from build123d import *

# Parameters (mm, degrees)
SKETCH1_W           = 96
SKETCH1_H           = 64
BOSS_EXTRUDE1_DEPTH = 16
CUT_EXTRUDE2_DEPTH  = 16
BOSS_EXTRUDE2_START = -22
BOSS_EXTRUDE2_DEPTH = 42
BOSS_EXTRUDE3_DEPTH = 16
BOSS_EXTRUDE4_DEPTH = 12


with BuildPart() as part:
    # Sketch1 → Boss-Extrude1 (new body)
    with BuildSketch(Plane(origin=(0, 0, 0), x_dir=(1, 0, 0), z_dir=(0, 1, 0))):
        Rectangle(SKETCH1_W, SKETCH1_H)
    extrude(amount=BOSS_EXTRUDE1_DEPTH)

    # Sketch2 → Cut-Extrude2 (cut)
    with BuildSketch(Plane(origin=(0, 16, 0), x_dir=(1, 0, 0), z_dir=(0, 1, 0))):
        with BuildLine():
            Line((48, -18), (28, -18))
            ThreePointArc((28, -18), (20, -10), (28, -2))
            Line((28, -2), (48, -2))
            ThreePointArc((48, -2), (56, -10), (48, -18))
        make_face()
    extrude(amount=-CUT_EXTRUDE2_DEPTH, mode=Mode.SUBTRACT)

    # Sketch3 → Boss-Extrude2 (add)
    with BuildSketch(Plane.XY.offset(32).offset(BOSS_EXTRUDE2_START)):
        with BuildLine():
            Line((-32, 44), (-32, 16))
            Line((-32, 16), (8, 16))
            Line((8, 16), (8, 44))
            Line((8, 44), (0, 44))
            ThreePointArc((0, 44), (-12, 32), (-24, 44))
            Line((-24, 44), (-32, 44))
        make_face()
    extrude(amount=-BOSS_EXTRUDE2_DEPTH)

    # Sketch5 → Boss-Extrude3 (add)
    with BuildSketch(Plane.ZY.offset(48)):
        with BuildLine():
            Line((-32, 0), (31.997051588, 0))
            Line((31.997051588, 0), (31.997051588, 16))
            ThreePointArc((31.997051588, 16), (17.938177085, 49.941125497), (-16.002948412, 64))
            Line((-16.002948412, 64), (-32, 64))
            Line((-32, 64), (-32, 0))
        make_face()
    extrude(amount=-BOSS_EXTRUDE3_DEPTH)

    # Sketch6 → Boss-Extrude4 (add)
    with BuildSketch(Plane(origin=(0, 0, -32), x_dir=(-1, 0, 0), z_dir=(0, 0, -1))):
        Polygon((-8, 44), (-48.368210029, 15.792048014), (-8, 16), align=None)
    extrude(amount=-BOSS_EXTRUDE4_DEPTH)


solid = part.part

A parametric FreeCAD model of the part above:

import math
import FreeCAD as App
import Part
import Sketcher

V = App.Vector


def add_polygon(sketch, points):
    """Adds a closed chain of lines whose ends are joined by coincident constraints."""
    first, n = sketch.GeometryCount, len(points)
    for a, b in zip(points, points[1:] + points[:1]):
        sketch.addGeometry(Part.LineSegment(App.Vector(*a, 0), App.Vector(*b, 0)), False)
    for i in range(n):
        sketch.addConstraint(Sketcher.Constraint("Coincident", first + i, 2, first + (i + 1) % n, 1))

doc = App.newDocument("Part")
body = doc.addObject("PartDesign::Body", "Body")

# Sketch on XZ plane
sketch1 = doc.addObject("Sketcher::SketchObject", "Sketch")
body.addObject(sketch1)
sketch1.AttachmentSupport = (doc.XZ_Plane, [""])
sketch1.MapMode = "FlatFace"
add_polygon(sketch1, [(-48, -32), (-48, 32), (48, 32), (48, -32)])  # lines 0-3
sketch1.addConstraint([
    Sketcher.Constraint("Vertical", 0),
    Sketcher.Constraint("Horizontal", 1),
    Sketcher.Constraint("Vertical", 2),
    Sketcher.Constraint("Horizontal", 3),
    Sketcher.Constraint("Symmetric", 0, 2, 2, 2, -1, 1),
    Sketcher.Constraint("DistanceX", 1, 1, 1, 2, 96.0),
    Sketcher.Constraint("DistanceY", 0, 1, 0, 2, 64.0),
])
pad1 = doc.addObject("PartDesign::Pad", "Pad")
body.addObject(pad1)
pad1.Profile = sketch1
pad1.Length = 16
pad1.Reversed = True

# Sketch on XZ plane
sketch2 = doc.addObject("Sketcher::SketchObject", "Sketch001")
body.addObject(sketch2)
sketch2.AttachmentSupport = (doc.XZ_Plane, [""])
sketch2.MapMode = "FlatFace"
sketch2.AttachmentOffset = App.Placement(V(0, 0, -16), App.Rotation())
sketch2.addGeometry([
    Part.LineSegment(V(28, 18, 0), V(48, 18, 0)),
    Part.ArcOfCircle(Part.Circle(V(48, 10, 0), V(0, 0, 1), 8), math.radians(-90), math.radians(90)),
    Part.LineSegment(V(48, 2, 0), V(28, 2, 0)),
    Part.ArcOfCircle(Part.Circle(V(28, 10, 0), V(0, 0, 1), 8), math.radians(90), math.radians(270)),
], False)
sketch2.addConstraint([
    Sketcher.Constraint("Tangent", 0, 2, 1, 2),
    Sketcher.Constraint("Tangent", 1, 1, 2, 1),
    Sketcher.Constraint("Tangent", 2, 2, 3, 2),
    Sketcher.Constraint("Tangent", 3, 1, 0, 1),
    Sketcher.Constraint("Horizontal", 0),
    Sketcher.Constraint("Horizontal", 2),
    Sketcher.Constraint("Radius", 1, 8.0),
    Sketcher.Constraint("DistanceX", 0, 1, 0, 2, 20.0),
    Sketcher.Constraint("DistanceX", -1, 1, 1, 3, 48.0),
    Sketcher.Constraint("DistanceY", -1, 1, 1, 3, 10.0),
])
pocket1 = doc.addObject("PartDesign::Pocket", "Pocket")
body.addObject(pocket1)
pocket1.Profile = sketch2
pocket1.Length = 16
pocket1.Reversed = True

# Sketch on XY plane
sketch3 = doc.addObject("Sketcher::SketchObject", "Sketch002")
body.addObject(sketch3)
sketch3.AttachmentSupport = (doc.XY_Plane, [""])
sketch3.MapMode = "FlatFace"
sketch3.AttachmentOffset = App.Placement(V(0, 0, 10), App.Rotation())
sketch3.addGeometry([
    Part.LineSegment(V(-32, 44, 0), V(-32, 16, 0)),  # 0
    Part.LineSegment(V(-32, 16, 0), V(8, 16, 0)),  # 1
    Part.LineSegment(V(8, 16, 0), V(8, 44, 0)),  # 2
    Part.LineSegment(V(8, 44, 0), V(0, 44, 0)),  # 3
    Part.ArcOfCircle(Part.Circle(V(-12, 44, 0), V(0, 0, 1), 12), math.radians(180), math.radians(360)),  # 4
    Part.LineSegment(V(-24, 44, 0), V(-32, 44, 0)),  # 5
], False)
sketch3.addConstraint([
    Sketcher.Constraint("Coincident", 0, 2, 1, 1),
    Sketcher.Constraint("Coincident", 1, 2, 2, 1),
    Sketcher.Constraint("Coincident", 2, 2, 3, 1),
    Sketcher.Constraint("Coincident", 3, 2, 4, 2),
    Sketcher.Constraint("Coincident", 4, 1, 5, 1),
    Sketcher.Constraint("Coincident", 5, 2, 0, 1),
    Sketcher.Constraint("Vertical", 0),
    Sketcher.Constraint("Horizontal", 1),
    Sketcher.Constraint("Vertical", 2),
    Sketcher.Constraint("Horizontal", 3),
    Sketcher.Constraint("Horizontal", 5),
    Sketcher.Constraint("PointOnObject", 3, 2, -2),
    Sketcher.Constraint("Horizontal", 4, 3, 2, 2),
    Sketcher.Constraint("Horizontal", 3, 2, 4, 1),
    Sketcher.Constraint("Equal", 3, 5),
    Sketcher.Constraint("Radius", 4, 12.0),
    Sketcher.Constraint("DistanceX", 1, 1, 1, 2, 40.0),
    Sketcher.Constraint("DistanceY", 0, 2, 0, 1, 28.0),
    Sketcher.Constraint("DistanceY", -1, 1, 4, 3, 44.0),
])
pad2 = doc.addObject("PartDesign::Pad", "Pad001")
body.addObject(pad2)
pad2.Profile = sketch3
pad2.Length = 42
pad2.Reversed = True

# Sketch on YZ plane
sketch4 = doc.addObject("Sketcher::SketchObject", "Sketch003")
body.addObject(sketch4)
sketch4.AttachmentSupport = (doc.YZ_Plane, [""])
sketch4.MapMode = "FlatFace"
sketch4.AttachmentOffset = App.Placement(V(0, 0, -48), App.Rotation())
sketch4.addGeometry([
    Part.LineSegment(V(0, -32, 0), V(0, 32, 0)),  # 0
    Part.LineSegment(V(0, 32, 0), V(16, 32, 0)),  # 1
    Part.ArcOfCircle(Part.Circle(V(16, -16, 0), V(0, 0, 1), 48), math.radians(0), math.radians(90)),  # 2
    Part.LineSegment(V(64, -16, 0), V(64, -32, 0)),  # 3
    Part.LineSegment(V(64, -32, 0), V(0, -32, 0)),  # 4
], False)
sketch4.addConstraint([
    Sketcher.Constraint("Coincident", 0, 2, 1, 1),
    Sketcher.Constraint("Tangent", 1, 2, 2, 2),
    Sketcher.Constraint("Tangent", 2, 1, 3, 1),
    Sketcher.Constraint("Coincident", 3, 2, 4, 1),
    Sketcher.Constraint("Coincident", 4, 2, 0, 1),
    Sketcher.Constraint("Vertical", 0),
    Sketcher.Constraint("Horizontal", 1),
    Sketcher.Constraint("Vertical", 3),
    Sketcher.Constraint("Horizontal", 4),
    Sketcher.Constraint("PointOnObject", 0, 2, -2),
    Sketcher.Constraint("Radius", 2, 48.0),
    Sketcher.Constraint("DistanceX", 1, 1, 1, 2, 16.0),
    Sketcher.Constraint("DistanceY", 3, 2, -1, 1, 32.0),
    Sketcher.Constraint("DistanceY", 0, 1, 0, 2, 63.997052),
])
pad3 = doc.addObject("PartDesign::Pad", "Pad002")
body.addObject(pad3)
pad3.Profile = sketch4
pad3.Length = 16

# Sketch on XY plane
sketch5 = doc.addObject("Sketcher::SketchObject", "Sketch004")
body.addObject(sketch5)
sketch5.AttachmentSupport = (doc.XY_Plane, [""])
sketch5.MapMode = "FlatFace"
sketch5.AttachmentOffset = App.Placement(V(0, 0, -32), App.Rotation())
add_polygon(sketch5, [(8, 44), (48, 16), (8, 16)])  # lines 0-2
sketch5.addConstraint([
    Sketcher.Constraint("Vertical", 2),
    Sketcher.Constraint("DistanceY", 2, 1, 2, 2, 28.0),
    Sketcher.Constraint("DistanceX", -1, 1, 1, 2, 8.0),
    Sketcher.Constraint("DistanceY", -1, 1, 1, 2, 16.0),
    Sketcher.Constraint("Distance", 0, 49.247141),
    Sketcher.Constraint("DistanceX", -1, 1, 0, 2, 48.36821),
])
pad4 = doc.addObject("PartDesign::Pad", "Pad003")
body.addObject(pad4)
pad4.Profile = sketch5
pad4.Length = 12

doc.recompute()
